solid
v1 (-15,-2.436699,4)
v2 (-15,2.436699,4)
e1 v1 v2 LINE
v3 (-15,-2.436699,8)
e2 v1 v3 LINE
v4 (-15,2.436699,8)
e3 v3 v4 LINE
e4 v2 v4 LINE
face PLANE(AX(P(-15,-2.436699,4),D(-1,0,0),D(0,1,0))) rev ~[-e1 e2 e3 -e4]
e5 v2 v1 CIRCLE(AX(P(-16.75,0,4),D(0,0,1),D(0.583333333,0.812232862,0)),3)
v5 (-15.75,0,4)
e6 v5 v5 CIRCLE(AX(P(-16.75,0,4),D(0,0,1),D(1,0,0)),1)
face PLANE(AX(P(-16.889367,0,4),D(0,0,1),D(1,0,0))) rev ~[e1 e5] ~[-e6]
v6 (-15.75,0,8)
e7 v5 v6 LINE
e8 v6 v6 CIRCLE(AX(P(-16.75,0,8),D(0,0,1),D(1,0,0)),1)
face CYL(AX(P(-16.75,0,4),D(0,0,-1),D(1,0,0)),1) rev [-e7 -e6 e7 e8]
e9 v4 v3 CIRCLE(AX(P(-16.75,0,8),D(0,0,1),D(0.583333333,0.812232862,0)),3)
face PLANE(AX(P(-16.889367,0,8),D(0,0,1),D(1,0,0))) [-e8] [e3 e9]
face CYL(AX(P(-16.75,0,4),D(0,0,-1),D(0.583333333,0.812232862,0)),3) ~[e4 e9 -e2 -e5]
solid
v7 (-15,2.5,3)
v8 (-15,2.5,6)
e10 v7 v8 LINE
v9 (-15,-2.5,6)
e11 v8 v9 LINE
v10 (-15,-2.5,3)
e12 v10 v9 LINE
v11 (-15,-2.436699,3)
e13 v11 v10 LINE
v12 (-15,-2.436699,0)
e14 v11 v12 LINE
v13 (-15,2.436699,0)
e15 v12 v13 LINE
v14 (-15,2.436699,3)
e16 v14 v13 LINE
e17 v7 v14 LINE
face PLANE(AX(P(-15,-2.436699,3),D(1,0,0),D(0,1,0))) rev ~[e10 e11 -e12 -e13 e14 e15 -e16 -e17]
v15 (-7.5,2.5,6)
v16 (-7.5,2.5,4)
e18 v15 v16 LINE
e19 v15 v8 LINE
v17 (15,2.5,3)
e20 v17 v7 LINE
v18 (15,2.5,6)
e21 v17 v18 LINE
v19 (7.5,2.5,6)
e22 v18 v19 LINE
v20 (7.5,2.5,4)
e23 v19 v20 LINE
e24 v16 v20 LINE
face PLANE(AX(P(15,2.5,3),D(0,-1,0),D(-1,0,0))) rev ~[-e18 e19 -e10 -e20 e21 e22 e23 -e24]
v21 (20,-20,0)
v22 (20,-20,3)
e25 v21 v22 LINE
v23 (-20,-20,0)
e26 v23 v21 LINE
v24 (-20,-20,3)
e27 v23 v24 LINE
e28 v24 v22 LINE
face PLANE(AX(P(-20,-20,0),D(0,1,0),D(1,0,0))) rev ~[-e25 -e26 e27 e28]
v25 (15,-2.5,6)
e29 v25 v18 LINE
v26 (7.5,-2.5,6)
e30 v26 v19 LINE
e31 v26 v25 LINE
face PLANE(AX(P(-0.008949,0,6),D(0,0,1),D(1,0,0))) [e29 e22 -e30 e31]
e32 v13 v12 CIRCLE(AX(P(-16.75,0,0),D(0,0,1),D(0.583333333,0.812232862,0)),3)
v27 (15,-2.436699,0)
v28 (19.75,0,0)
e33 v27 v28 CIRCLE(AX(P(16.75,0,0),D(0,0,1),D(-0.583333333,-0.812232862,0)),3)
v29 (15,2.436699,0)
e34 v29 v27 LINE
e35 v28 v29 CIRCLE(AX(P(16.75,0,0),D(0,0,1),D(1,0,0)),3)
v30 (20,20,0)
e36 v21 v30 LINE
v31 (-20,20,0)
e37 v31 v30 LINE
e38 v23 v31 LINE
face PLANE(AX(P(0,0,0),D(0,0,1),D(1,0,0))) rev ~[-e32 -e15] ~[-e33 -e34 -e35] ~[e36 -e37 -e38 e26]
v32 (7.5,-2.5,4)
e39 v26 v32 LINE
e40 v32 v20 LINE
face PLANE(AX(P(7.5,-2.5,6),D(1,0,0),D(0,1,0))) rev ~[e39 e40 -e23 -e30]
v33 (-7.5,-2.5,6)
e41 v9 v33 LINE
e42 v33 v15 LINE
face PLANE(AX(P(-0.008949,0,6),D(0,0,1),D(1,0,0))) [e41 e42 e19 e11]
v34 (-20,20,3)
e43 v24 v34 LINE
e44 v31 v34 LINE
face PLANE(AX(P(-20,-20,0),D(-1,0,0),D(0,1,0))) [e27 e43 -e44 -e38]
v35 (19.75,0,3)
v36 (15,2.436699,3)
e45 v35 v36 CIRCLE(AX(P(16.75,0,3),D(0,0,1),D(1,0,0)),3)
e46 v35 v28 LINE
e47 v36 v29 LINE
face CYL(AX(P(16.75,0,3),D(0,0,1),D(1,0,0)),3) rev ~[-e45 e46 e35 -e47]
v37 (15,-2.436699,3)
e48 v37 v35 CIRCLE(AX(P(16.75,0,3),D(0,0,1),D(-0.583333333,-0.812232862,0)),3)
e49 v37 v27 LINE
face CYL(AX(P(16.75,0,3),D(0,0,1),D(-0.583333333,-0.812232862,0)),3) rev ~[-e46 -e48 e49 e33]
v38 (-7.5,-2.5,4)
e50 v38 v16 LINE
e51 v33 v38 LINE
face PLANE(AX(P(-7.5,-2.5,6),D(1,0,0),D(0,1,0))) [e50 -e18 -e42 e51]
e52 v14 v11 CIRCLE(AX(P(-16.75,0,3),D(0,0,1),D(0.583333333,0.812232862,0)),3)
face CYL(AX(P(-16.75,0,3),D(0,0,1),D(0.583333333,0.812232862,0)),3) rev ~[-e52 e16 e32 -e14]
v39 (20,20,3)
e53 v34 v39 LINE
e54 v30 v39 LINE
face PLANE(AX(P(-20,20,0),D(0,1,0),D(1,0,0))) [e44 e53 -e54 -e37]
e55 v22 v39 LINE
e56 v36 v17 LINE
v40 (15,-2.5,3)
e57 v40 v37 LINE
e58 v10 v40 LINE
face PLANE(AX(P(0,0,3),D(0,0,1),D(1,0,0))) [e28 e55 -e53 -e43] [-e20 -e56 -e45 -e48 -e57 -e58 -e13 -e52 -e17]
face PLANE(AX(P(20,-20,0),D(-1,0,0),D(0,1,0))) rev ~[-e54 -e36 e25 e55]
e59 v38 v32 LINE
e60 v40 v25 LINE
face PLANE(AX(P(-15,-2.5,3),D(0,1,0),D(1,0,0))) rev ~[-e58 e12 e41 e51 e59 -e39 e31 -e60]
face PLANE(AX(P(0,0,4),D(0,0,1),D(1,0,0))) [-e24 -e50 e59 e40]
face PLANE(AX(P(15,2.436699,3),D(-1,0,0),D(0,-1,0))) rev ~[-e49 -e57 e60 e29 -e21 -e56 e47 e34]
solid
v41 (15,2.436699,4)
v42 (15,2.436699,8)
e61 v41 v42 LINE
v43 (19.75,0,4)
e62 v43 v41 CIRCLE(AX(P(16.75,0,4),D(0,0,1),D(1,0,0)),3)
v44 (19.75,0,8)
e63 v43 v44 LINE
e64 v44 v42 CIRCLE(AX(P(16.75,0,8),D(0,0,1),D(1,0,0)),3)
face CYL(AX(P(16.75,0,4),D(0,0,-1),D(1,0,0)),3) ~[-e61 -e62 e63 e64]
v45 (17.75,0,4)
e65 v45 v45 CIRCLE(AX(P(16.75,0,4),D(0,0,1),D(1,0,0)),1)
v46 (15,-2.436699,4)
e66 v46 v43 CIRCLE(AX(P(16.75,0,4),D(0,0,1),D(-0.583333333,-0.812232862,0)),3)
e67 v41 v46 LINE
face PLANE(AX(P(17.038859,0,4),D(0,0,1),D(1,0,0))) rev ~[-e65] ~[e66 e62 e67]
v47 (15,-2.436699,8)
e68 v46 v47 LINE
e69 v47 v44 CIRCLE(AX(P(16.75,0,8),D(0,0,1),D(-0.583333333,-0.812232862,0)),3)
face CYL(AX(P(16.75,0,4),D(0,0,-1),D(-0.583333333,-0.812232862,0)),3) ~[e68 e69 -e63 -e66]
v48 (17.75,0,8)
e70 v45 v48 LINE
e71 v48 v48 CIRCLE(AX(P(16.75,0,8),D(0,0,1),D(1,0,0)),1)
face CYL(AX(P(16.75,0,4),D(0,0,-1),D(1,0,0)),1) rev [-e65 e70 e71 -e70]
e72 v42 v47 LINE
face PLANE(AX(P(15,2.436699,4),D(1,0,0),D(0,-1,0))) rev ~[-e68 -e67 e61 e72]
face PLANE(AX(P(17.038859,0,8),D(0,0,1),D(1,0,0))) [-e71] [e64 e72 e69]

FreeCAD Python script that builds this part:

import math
import FreeCAD as App
import Part
import Sketcher
from FreeCAD import Vector
Q = App.Units.Quantity

doc = App.newDocument("Part")
body = doc.addObject("PartDesign::Body", "Body")

# Sketch on XY plane
sketch1 = body.newObject("Sketcher::SketchObject", "Sketch")
sketch1.AttachmentSupport = (doc.getObject("XY_Plane"), [""])
sketch1.MapMode = "FlatFace"
sketch1.addGeometry([
    Part.LineSegment(Vector(-20, 20, 0), Vector(-20, -20, 0)),
    Part.LineSegment(Vector(-20, -20, 0), Vector(20, -20, 0)),
    Part.LineSegment(Vector(20, -20, 0), Vector(20, 20, 0)),
    Part.LineSegment(Vector(20, 20, 0), Vector(-20, 20, 0)),
], False)
sketch1.addConstraint([
    Sketcher.Constraint("Coincident", 0, 2, 1, 1),
    Sketcher.Constraint("Coincident", 1, 2, 2, 1),
    Sketcher.Constraint("Coincident", 2, 2, 3, 1),
    Sketcher.Constraint("Coincident", 3, 2, 0, 1),
    Sketcher.Constraint("Vertical", 0),
    Sketcher.Constraint("Horizontal", 1),
    Sketcher.Constraint("Vertical", 2),
    Sketcher.Constraint("Horizontal", 3),
    Sketcher.Constraint("Symmetric", 0, 2, 2, 2, -1, 1),
    Sketcher.Constraint("Equal", 3, 0),
    Sketcher.Constraint("DistanceX", 1, 1, 1, 2, Q("40 mm")),
])
pad1 = body.newObject("PartDesign::Pad", "Pad")
pad1.Profile = sketch1
pad1.Length = 3

# Sketch on XY plane
sketch2 = body.newObject("Sketcher::SketchObject", "Sketch001")
sketch2.AttachmentSupport = (doc.getObject("XY_Plane"), [""])
sketch2.MapMode = "FlatFace"
sketch2.AttachmentOffset = App.Placement(Vector(0, 0, 3), App.Rotation())
sketch2.addGeometry([
    Part.LineSegment(Vector(15, 2, 0), Vector(-15, 2, 0)),
    Part.LineSegment(Vector(-15, 2, 0), Vector(-15, -2, 0)),
    Part.LineSegment(Vector(-15, -2, 0), Vector(15, -2, 0)),
    Part.LineSegment(Vector(15, -2, 0), Vector(15, 2, 0)),
], False)
sketch2.addConstraint([
    Sketcher.Constraint("Coincident", 0, 2, 1, 1),
    Sketcher.Constraint("Coincident", 1, 2, 2, 1),
    Sketcher.Constraint("Coincident", 2, 2, 3, 1),
    Sketcher.Constraint("Coincident", 3, 2, 0, 1),
    Sketcher.Constraint("Horizontal", 0),
    Sketcher.Constraint("Vertical", 1),
    Sketcher.Constraint("Horizontal", 2),
    Sketcher.Constraint("Vertical", 3),
    Sketcher.Constraint("Symmetric", 0, 2, 2, 2, -1, 1),
    Sketcher.Constraint("DistanceX", 0, 2, 0, 1, Q("30 mm")),
    Sketcher.Constraint("DistanceY", 1, 2, 1, 1, Q("5 mm")),
])
pad2 = body.newObject("PartDesign::Pad", "Pad001")
pad2.Profile = sketch2
pad2.Length = 3

# Sketch on XY plane
sketch3 = body.newObject("Sketcher::SketchObject", "Sketch002")
sketch3.AttachmentSupport = (doc.getObject("XY_Plane"), [""])
sketch3.MapMode = "FlatFace"
sketch3.AttachmentOffset = App.Placement(Vector(0, 0, 3), App.Rotation())
sketch3.addGeometry([
    Part.ArcOfCircle(Part.Circle(Vector(-16.8, 0, 0), Vector(0, 0, 1), 3), math.radians(54), math.radians(306)),  # 0
    Part.LineSegment(Vector(-15, -2.4, 0), Vector(-15, 2.4, 0)),  # 1
    Part.ArcOfCircle(Part.Circle(Vector(16.8, 0, 0), Vector(0, 0, 1), 3), math.radians(0), math.radians(126)),  # 2
    Part.LineSegment(Vector(15, 2.4, 0), Vector(15, -2.4, 0)),  # 3
    Part.ArcOfCircle(Part.Circle(Vector(16.8, 0, 0), Vector(0, 0, 1), 3), math.radians(-126), math.radians(0)),  # 4
], False)
sketch3.addConstraint([
    Sketcher.Constraint("Coincident", 0, 1, 1, 2),
    Sketcher.Constraint("Coincident", 1, 1, 0, 2),
    Sketcher.Constraint("Coincident", 2, 2, 3, 1),
    Sketcher.Constraint("Coincident", 3, 2, 4, 1),
    Sketcher.Constraint("Tangent", 4, 2, 2, 1),
    Sketcher.Constraint("Vertical", 1),
    Sketcher.Constraint("Vertical", 3),
    Sketcher.Constraint("Equal", 0, 2),
    Sketcher.Constraint("Equal", 2, 4),
    Sketcher.Constraint("Symmetric", 0, 3, 2, 3, -1, 1),
    Sketcher.Constraint("Symmetric", 0, 1, 2, 2, -2),
    Sketcher.Constraint("PointOnObject", 4, 2, -1),
    Sketcher.Constraint("Radius", 0, Q("3 mm")),
    Sketcher.Constraint("DistanceX", 0, 1, -1, 1, Q("15 mm")),
    Sketcher.Constraint("DistanceX", 0, 3, 2, 3, Q("33.5 mm")),
])
pocket1 = body.newObject("PartDesign::Pocket", "Pocket")
pocket1.Profile = sketch3
pocket1.Length = 25

# Sketch on XY plane
sketch4 = body.newObject("Sketcher::SketchObject", "Sketch003")
sketch4.AttachmentSupport = (doc.getObject("XY_Plane"), [""])
sketch4.MapMode = "FlatFace"
sketch4.AttachmentOffset = App.Placement(Vector(0, 0, 6), App.Rotation())
sketch4.addGeometry([
    Part.LineSegment(Vector(-8, 2, 0), Vector(-8, -2, 0)),
    Part.LineSegment(Vector(-8, -2, 0), Vector(8, -2, 0)),
    Part.LineSegment(Vector(8, -2, 0), Vector(8, 2, 0)),
    Part.LineSegment(Vector(8, 2, 0), Vector(-8, 2, 0)),
], False)
sketch4.addConstraint([
    Sketcher.Constraint("Coincident", 0, 2, 1, 1),
    Sketcher.Constraint("Coincident", 1, 2, 2, 1),
    Sketcher.Constraint("Coincident", 2, 2, 3, 1),
    Sketcher.Constraint("Coincident", 3, 2, 0, 1),
    Sketcher.Constraint("Vertical", 0),
    Sketcher.Constraint("Horizontal", 1),
    Sketcher.Constraint("Vertical", 2),
    Sketcher.Constraint("Horizontal", 3),
    Sketcher.Constraint("Symmetric", 0, 2, 2, 2, -1, 1),
    Sketcher.Constraint("DistanceX", 1, 1, 1, 2, Q("15 mm")),
    Sketcher.Constraint("DistanceY", 0, 2, 0, 1, Q("5 mm")),
])
pocket2 = body.newObject("PartDesign::Pocket", "Pocket001")
pocket2.Profile = sketch4
pocket2.Length = 2
body2 = doc.addObject("PartDesign::Body", "Body001")

# Sketch on XY plane
sketch5 = body2.newObject("Sketcher::SketchObject", "Sketch004")
sketch5.AttachmentSupport = (doc.getObject("XY_Plane001"), [""])
sketch5.MapMode = "FlatFace"
sketch5.AttachmentOffset = App.Placement(Vector(0, 0, 4), App.Rotation())
sketch5.addGeometry([
    Part.ArcOfCircle(Part.Circle(Vector(-16.8, 0, 0), Vector(0, 0, 1), 3), math.radians(54), math.radians(306)),
    Part.LineSegment(Vector(-15, -2.4, 0), Vector(-15, 2.4, 0)),
    Part.Circle(Vector(-16.8, 0, 0), Vector(0, 0, 1), 1),
], False)
sketch5.addConstraint([
    Sketcher.Constraint("Coincident", 0, 1, 1, 2),
    Sketcher.Constraint("Coincident", 1, 1, 0, 2),
    Sketcher.Constraint("Vertical", 1),
    Sketcher.Constraint("Coincident", 2, 3, 0, 3),
    Sketcher.Constraint("PointOnObject", 0, 3, -1),
    Sketcher.Constraint("Diameter", 2, Q("2 mm")),
    Sketcher.Constraint("Radius", 0, Q("3 mm")),
    Sketcher.Constraint("DistanceX", 0, 1, -1, 1, Q("15 mm")),
    Sketcher.Constraint("DistanceX", 0, 3, -1, 1, Q("16.75 mm")),
])
pad3 = body2.newObject("PartDesign::Pad", "Pad002")
pad3.Profile = sketch5
pad3.Length = 4
body3 = doc.addObject("PartDesign::Body", "Body002")

# Sketch on XY plane
sketch6 = body3.newObject("Sketcher::SketchObject", "Sketch005")
sketch6.AttachmentSupport = (doc.getObject("XY_Plane002"), [""])
sketch6.MapMode = "FlatFace"
sketch6.AttachmentOffset = App.Placement(Vector(0, 0, 4), App.Rotation())
sketch6.addGeometry([
    Part.ArcOfCircle(Part.Circle(Vector(16.8, 0, 0), Vector(0, 0, 1), 3), math.radians(0), math.radians(126)),
    Part.LineSegment(Vector(15, 2.4, 0), Vector(15, -2.4, 0)),
    Part.ArcOfCircle(Part.Circle(Vector(16.8, 0, 0), Vector(0, 0, 1), 3), math.radians(-126), math.radians(0)),
    Part.Circle(Vector(16.8, 0, 0), Vector(0, 0, 1), 1),
], False)
sketch6.addConstraint([
    Sketcher.Constraint("Coincident", 0, 2, 1, 1),
    Sketcher.Constraint("Coincident", 1, 2, 2, 1),
    Sketcher.Constraint("Tangent", 2, 2, 0, 1),
    Sketcher.Constraint("Vertical", 1),
    Sketcher.Constraint("Coincident", 3, 3, 0, 3),
    Sketcher.Constraint("Equal", 0, 2),
    Sketcher.Constraint("PointOnObject", 0, 3, -1),
    Sketcher.Constraint("PointOnObject", 2, 2, -1),
    Sketcher.Constraint("Diameter", 3, Q("2 mm")),
    Sketcher.Constraint("Radius", 0, Q("3 mm")),
    Sketcher.Constraint("DistanceX", -1, 1, 0, 2, Q("15 mm")),
    Sketcher.Constraint("DistanceX", -1, 1, 0, 3, Q("16.75 mm")),
])
pad4 = body3.newObject("PartDesign::Pad", "Pad003")
pad4.Profile = sketch6
pad4.Length = 4

doc.recompute()
